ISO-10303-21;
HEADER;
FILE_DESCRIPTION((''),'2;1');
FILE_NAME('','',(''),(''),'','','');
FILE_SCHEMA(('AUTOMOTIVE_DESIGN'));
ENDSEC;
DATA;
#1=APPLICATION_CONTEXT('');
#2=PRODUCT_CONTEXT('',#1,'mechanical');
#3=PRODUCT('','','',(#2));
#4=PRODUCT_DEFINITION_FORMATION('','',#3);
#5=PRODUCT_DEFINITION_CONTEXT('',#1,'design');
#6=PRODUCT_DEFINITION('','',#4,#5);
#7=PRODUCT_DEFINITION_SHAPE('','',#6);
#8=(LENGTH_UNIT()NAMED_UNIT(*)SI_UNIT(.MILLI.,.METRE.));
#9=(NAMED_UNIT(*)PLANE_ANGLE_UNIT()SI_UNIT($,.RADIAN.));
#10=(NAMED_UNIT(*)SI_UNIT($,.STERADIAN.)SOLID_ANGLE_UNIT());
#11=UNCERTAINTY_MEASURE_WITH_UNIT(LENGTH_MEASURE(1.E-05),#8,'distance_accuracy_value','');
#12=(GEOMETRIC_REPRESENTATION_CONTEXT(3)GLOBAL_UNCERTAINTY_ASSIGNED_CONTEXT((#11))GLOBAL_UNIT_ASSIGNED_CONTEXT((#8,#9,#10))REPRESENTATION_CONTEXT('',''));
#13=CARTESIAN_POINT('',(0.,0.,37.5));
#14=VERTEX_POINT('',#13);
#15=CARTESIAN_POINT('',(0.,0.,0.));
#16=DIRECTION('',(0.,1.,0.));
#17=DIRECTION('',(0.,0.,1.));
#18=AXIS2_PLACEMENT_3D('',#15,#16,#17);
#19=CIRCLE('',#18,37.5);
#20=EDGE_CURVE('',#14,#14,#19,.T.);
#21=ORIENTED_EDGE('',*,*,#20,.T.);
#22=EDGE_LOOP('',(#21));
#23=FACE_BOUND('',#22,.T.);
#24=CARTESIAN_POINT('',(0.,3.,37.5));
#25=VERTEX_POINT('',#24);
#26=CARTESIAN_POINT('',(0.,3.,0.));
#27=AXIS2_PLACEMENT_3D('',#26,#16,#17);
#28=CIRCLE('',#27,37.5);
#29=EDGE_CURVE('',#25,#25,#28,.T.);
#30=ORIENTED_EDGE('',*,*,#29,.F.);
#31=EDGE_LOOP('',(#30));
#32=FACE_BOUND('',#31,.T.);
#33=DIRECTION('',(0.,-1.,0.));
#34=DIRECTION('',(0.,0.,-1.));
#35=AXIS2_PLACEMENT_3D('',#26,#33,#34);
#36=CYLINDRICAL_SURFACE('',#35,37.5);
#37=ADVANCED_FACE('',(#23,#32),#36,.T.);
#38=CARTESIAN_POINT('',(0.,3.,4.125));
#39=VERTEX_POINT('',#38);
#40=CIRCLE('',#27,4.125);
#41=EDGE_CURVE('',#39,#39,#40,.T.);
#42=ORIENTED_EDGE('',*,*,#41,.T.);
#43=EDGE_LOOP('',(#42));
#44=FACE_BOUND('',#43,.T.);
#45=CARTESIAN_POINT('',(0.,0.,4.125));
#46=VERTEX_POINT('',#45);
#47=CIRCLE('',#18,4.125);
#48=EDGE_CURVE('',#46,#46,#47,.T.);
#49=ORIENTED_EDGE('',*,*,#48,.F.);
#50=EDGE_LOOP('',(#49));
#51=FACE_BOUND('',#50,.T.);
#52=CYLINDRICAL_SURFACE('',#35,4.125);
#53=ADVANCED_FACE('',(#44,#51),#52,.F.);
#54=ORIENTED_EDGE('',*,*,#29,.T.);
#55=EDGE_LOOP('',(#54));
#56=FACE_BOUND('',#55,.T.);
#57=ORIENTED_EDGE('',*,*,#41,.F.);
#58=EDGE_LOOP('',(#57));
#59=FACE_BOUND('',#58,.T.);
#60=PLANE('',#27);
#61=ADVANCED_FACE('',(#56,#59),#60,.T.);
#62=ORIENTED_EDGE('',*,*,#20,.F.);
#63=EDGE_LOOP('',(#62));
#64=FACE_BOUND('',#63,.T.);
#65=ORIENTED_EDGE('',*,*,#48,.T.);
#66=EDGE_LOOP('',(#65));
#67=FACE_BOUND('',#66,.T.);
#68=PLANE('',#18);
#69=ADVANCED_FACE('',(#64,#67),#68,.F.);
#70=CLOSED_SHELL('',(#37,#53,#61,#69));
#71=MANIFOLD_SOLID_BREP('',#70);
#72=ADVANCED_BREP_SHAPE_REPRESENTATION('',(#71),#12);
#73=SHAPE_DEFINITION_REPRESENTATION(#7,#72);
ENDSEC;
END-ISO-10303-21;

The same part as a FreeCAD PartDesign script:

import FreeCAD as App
import Part
import Sketcher
Q = App.Units.Quantity

doc = App.newDocument("Part")
params = doc.addObject("Spreadsheet::Sheet", "Params")
for row, (alias, value) in enumerate([
    ("sketch1_diameter", "75 mm"),
    ("sketch1_diameter2", "8.25 mm"),
    ("pad1_length", "3 mm"),
], start=1):
    params.set(f"A{row}", alias)
    params.set(f"B{row}", "=" + value)
    params.setAlias(f"B{row}", alias)

body = doc.addObject("PartDesign::Body", "Body")

sketch1 = body.newObject("Sketcher::SketchObject", "Sketch")
sketch1.AttachmentSupport = (doc.getObject("XZ_Plane"), [""])
sketch1.MapMode = "FlatFace"
sketch1.addGeometry(Part.Circle(App.Vector(0, 0, 0), App.Vector(0, 0, 1), 37.5), False)
sketch1.addGeometry(Part.Circle(App.Vector(0, 0, 0), App.Vector(0, 0, 1), 4.1), False)
sketch1.addConstraint(Sketcher.Constraint("Coincident", 0, 3, -1, 1))
sketch1.addConstraint(Sketcher.Constraint("Coincident", 1, 3, -1, 1))
sketch1.addConstraint(Sketcher.Constraint("Diameter", 0, Q("75 mm")))
sketch1.addConstraint(Sketcher.Constraint("Diameter", 1, Q("8.25 mm")))
sketch1.setExpression("Constraints[2]", "Params.sketch1_diameter")
sketch1.setExpression("Constraints[3]", "Params.sketch1_diameter2")
pad1 = body.newObject("PartDesign::Pad", "Pad")
pad1.Profile = sketch1
pad1.setExpression("Length", "Params.pad1_length")
pad1.Reversed = True

doc.recompute()
